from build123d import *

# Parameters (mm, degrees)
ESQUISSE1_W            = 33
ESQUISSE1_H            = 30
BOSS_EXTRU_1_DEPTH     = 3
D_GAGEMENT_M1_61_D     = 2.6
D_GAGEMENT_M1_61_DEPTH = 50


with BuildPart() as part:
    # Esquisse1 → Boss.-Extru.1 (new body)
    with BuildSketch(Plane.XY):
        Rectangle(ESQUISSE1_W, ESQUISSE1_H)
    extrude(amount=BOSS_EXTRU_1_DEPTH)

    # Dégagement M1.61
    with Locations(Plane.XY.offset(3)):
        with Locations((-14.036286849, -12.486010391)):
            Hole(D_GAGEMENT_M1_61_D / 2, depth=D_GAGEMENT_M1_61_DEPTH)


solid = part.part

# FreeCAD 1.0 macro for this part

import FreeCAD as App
import Part
import Sketcher


def add_polygon(sketch, points):
    """Adds a closed chain of lines whose ends are joined by coincident constraints."""
    first, n = sketch.GeometryCount, len(points)
    for a, b in zip(points, points[1:] + points[:1]):
        sketch.addGeometry(Part.LineSegment(App.Vector(*a, 0), App.Vector(*b, 0)), False)
    for i in range(n):
        sketch.addConstraint(Sketcher.Constraint("Coincident", first + i, 2, first + (i + 1) % n, 1))

doc = App.newDocument("Part")
body = doc.addObject("PartDesign::Body", "Body")

sketch1 = body.newObject("Sketcher::SketchObject", "Sketch")
sketch1.AttachmentSupport = (doc.getObject("XY_Plane"), [""])
sketch1.MapMode = "FlatFace"
add_polygon(sketch1, [(-16, 15), (-16, -15), (16, -15), (16, 15)])
sketch1.addConstraint([
    Sketcher.Constraint("Vertical", 0),
    Sketcher.Constraint("Horizontal", 1),
    Sketcher.Constraint("Vertical", 2),
    Sketcher.Constraint("Horizontal", 3),
    Sketcher.Constraint("Symmetric", 0, 2, 2, 2, -1, 1),
    Sketcher.Constraint("DistanceX", 1, 1, 1, 2, 33.0),
    Sketcher.Constraint("DistanceY", 0, 2, 0, 1, 30.0),
])
pad1 = body.newObject("PartDesign::Pad", "Pad")
pad1.Profile = sketch1
pad1.Length = 3

sketch2 = body.newObject("Sketcher::SketchObject", "Sketch001")
sketch2.AttachmentSupport = (doc.getObject("XY_Plane"), [""])
sketch2.MapMode = "FlatFace"
sketch2.AttachmentOffset = App.Placement(App.Vector(0, 0, 3), App.Rotation())
sketch2.addGeometry(Part.Circle(App.Vector(-14, -12.5, 0), App.Vector(0, 0, 1), 1.3), False)
sketch2.addConstraint([
    Sketcher.Constraint("Diameter", 0, 2.6),
    Sketcher.Constraint("DistanceY", 0, 3, -1, 1, 12.48601),
    Sketcher.Constraint("DistanceX", 0, 3, -1, 1, 14.036287),
])
doc.recompute()
hole = body.newObject("PartDesign::Hole", "Hole")
hole.Profile = sketch2
hole.ThreadType = "None"
hole.Diameter = 2.6
hole.DepthType = "Dimension"
hole.Depth = 50
hole.DrillPoint = "Flat"

doc.recompute()
